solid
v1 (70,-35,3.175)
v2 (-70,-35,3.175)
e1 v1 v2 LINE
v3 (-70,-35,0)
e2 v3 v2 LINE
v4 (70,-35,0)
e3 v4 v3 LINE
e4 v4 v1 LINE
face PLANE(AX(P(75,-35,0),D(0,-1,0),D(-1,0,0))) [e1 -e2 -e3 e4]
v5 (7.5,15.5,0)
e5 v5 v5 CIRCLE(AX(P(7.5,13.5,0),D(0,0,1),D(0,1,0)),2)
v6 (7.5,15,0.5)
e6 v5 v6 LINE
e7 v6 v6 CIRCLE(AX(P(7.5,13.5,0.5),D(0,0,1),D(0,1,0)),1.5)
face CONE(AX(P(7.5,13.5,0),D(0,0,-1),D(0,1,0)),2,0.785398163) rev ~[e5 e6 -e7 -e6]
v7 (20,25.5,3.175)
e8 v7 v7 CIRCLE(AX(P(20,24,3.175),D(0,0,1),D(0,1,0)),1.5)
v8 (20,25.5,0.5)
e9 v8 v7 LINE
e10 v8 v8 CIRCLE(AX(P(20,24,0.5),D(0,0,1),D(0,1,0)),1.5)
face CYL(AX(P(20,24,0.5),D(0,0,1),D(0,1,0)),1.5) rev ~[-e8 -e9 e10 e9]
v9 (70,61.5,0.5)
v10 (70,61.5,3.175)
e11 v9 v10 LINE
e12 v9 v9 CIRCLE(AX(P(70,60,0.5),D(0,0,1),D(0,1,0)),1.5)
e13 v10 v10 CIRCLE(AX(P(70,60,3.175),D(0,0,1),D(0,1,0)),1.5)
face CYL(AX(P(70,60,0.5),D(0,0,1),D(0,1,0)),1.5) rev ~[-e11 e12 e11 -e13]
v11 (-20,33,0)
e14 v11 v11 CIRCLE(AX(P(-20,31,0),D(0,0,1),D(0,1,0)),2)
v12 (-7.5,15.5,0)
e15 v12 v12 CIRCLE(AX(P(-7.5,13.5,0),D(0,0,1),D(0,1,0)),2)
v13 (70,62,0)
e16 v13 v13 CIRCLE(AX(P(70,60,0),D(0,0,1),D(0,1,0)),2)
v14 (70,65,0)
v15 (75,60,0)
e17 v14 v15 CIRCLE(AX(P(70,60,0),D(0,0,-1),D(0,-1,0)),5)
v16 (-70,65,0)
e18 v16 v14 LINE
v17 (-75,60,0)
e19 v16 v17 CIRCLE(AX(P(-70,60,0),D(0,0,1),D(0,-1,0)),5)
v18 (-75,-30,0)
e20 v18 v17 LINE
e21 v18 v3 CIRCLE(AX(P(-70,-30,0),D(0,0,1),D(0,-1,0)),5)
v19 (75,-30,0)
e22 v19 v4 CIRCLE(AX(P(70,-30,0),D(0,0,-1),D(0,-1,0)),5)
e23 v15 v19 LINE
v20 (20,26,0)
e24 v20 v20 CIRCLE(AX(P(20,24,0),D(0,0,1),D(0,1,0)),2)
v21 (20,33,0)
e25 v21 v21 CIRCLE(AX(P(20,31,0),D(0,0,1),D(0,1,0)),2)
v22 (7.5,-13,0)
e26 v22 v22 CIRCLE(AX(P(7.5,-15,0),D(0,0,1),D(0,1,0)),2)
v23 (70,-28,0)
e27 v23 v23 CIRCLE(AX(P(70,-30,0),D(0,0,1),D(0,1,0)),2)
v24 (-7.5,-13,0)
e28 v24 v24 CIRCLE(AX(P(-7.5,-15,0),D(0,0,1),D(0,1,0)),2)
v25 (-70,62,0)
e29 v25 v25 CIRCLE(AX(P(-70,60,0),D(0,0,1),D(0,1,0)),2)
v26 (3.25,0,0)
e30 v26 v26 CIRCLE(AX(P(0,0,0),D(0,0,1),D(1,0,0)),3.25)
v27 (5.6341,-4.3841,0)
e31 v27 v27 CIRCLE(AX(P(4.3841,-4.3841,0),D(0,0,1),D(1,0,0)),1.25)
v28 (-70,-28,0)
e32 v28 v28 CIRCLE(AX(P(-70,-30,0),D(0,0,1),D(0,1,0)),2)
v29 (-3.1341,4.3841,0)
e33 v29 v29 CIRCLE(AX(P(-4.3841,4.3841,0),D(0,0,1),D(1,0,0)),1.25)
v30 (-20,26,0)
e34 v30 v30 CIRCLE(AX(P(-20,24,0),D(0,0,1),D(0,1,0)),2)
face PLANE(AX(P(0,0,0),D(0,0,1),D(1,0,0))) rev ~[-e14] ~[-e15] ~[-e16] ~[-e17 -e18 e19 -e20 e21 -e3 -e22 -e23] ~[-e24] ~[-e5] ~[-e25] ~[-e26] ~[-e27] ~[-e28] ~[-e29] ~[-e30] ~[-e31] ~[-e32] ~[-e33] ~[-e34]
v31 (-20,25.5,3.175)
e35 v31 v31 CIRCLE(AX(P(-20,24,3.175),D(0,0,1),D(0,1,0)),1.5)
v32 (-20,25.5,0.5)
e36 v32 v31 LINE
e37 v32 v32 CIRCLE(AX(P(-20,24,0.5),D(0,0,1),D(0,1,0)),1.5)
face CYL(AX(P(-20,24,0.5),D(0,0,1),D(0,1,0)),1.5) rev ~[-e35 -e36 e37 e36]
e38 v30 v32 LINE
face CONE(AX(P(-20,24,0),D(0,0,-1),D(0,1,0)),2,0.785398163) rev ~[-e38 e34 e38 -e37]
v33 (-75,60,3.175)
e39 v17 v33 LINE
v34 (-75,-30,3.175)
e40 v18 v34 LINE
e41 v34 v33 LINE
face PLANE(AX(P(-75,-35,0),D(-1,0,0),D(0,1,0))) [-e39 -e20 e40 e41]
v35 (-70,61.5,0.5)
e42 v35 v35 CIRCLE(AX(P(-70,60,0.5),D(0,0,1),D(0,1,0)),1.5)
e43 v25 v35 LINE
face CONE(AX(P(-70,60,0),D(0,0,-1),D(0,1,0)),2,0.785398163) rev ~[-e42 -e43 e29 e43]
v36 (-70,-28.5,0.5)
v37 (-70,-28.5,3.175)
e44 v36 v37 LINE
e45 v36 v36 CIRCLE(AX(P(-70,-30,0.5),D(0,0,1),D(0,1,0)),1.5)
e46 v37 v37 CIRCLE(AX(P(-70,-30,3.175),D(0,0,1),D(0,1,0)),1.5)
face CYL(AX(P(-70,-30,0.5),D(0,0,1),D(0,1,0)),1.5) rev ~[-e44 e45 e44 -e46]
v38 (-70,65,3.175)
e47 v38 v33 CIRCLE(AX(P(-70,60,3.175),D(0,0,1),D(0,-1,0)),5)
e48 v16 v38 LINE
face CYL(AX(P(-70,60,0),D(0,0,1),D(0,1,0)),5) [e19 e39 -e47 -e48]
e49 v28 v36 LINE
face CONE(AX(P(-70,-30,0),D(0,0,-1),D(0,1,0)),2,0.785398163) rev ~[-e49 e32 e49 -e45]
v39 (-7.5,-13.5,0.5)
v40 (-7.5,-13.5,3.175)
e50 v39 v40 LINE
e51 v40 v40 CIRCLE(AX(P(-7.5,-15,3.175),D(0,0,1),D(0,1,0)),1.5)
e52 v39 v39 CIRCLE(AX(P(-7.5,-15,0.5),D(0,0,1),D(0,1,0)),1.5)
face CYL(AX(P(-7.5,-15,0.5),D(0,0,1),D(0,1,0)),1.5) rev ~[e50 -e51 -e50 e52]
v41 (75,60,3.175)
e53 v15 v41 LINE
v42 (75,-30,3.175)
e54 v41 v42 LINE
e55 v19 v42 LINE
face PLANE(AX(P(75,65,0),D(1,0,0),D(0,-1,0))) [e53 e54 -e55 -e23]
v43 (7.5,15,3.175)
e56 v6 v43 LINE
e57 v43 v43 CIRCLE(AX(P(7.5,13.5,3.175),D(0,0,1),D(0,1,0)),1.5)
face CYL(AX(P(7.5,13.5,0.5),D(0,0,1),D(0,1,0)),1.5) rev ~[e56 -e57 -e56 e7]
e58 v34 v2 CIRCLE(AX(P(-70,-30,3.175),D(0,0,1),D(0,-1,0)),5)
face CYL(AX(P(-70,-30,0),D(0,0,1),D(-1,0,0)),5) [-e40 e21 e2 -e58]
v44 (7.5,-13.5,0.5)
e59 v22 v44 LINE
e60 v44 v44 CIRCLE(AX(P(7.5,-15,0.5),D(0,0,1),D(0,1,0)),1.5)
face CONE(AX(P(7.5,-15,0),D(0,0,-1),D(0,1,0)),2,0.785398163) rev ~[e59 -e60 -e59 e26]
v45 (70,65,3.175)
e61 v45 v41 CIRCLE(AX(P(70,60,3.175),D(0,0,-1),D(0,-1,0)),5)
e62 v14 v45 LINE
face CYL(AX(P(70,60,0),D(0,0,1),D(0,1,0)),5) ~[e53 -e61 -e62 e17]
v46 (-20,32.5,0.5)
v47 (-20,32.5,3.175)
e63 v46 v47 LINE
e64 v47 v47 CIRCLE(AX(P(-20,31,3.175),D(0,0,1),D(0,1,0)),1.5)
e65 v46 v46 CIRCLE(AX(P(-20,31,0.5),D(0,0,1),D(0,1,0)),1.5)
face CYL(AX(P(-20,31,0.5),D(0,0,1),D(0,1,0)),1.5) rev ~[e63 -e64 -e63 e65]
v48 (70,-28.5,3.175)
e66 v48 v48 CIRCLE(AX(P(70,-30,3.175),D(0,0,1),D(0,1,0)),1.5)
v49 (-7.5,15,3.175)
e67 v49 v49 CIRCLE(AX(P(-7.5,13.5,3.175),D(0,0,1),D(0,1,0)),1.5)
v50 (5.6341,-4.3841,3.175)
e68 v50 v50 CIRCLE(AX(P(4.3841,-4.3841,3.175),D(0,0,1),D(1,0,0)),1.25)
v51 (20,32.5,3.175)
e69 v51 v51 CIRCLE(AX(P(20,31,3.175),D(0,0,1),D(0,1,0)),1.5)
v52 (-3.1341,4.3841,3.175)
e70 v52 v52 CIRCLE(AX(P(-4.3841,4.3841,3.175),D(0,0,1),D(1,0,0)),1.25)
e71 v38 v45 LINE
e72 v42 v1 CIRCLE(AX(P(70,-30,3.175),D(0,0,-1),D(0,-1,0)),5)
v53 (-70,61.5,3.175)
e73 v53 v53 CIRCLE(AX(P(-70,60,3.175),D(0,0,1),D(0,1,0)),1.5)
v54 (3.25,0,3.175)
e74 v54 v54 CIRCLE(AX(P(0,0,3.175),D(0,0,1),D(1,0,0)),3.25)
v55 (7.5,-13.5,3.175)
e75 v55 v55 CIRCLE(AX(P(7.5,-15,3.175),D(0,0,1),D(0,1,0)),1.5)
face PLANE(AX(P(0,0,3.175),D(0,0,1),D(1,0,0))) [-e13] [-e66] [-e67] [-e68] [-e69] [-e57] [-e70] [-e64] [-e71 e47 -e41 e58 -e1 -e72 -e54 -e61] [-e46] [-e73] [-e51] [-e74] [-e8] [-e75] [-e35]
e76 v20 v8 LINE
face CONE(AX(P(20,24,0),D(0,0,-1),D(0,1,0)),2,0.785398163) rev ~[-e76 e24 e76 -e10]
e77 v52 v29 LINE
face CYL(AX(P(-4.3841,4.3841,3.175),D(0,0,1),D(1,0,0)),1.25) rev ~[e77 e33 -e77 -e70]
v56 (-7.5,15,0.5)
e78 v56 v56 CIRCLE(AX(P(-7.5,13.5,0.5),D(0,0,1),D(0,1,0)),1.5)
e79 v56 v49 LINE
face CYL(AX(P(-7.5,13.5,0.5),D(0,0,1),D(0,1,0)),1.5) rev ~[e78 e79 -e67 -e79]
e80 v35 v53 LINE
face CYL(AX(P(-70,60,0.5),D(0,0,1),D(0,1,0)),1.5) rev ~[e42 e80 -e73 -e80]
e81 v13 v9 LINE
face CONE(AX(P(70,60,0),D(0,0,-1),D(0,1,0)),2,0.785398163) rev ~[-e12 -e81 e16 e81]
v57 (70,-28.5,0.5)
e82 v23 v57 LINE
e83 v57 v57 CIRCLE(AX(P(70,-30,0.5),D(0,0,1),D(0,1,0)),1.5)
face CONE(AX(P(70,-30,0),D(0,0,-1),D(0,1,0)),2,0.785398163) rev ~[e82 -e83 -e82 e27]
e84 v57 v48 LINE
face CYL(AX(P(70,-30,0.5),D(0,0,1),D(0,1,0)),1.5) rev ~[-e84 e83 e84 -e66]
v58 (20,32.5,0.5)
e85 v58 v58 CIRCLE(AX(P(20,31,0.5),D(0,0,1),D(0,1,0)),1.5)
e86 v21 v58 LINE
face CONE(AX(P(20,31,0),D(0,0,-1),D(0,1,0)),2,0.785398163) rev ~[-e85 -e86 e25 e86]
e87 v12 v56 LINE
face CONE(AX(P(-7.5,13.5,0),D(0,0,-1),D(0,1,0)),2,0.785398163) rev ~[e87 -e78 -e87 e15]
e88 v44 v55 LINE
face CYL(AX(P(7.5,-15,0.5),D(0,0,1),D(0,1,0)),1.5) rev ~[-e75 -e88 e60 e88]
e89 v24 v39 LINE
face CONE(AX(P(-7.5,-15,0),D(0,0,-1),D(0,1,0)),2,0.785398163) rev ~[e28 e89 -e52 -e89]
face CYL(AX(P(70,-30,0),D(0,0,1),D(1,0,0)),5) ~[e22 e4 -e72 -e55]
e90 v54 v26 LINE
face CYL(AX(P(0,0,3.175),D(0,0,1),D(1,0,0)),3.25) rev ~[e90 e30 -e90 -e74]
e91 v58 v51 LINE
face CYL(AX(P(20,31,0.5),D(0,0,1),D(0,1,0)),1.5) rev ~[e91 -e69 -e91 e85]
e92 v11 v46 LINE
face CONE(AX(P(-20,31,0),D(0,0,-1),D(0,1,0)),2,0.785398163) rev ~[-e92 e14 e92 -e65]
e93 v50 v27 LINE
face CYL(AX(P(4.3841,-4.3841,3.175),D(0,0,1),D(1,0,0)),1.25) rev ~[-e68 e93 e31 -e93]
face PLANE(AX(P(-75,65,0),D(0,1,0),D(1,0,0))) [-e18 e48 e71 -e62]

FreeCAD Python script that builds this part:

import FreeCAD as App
import Part
import Sketcher
from FreeCAD import Vector
Q = App.Units.Quantity


def edges_at(feature, points):
    """Names of the edges that pass closest to the given points."""
    edges = feature.Shape.Edges
    near = lambda p: min(range(len(edges)), key=lambda i: edges[i].distToShape(Part.Vertex(*p))[0])
    return sorted({f"Edge{near(p) + 1}" for p in points})

doc = App.newDocument("Part")
params = doc.addObject("Spreadsheet::Sheet", "Params")
for row, (alias, value) in enumerate([
    ("sketch1_width", "150 mm"),
    ("sketch1_height", "100 mm"),
    ("pad1_length", "3.175 mm"),
    ("sketch2_diameter", "3 mm"),
    ("hole_diameter", "3 mm"),
    ("hole_csink_diameter", "4 mm"),
    ("fillet_radius", "5 mm"),
    ("sketch3_diameter", "6.5 mm"),
    ("sketch3_diameter2", "2.5 mm"),
    ("sketch4_diameter", "3 mm"),
    ("hole2_diameter", "3 mm"),
    ("hole2_csink_diameter", "4 mm"),
    ("sketch5_diameter", "3 mm"),
    ("hole3_diameter", "3 mm"),
    ("hole3_csink_diameter", "4 mm"),
], start=1):
    params.set(f"A{row}", alias)
    params.set(f"B{row}", "=" + value)
    params.setAlias(f"B{row}", alias)

body = doc.addObject("PartDesign::Body", "Body")

sketch1 = body.newObject("Sketcher::SketchObject", "Sketch")
sketch1.AttachmentSupport = (doc.getObject("XY_Plane"), [""])
sketch1.MapMode = "FlatFace"
sketch1.addGeometry(Part.LineSegment(Vector(75, 65, 0), Vector(-75, 65, 0)), False)
sketch1.addGeometry(Part.LineSegment(Vector(-75, 65, 0), Vector(-75, -35, 0)), False)
sketch1.addGeometry(Part.LineSegment(Vector(-75, -35, 0), Vector(75, -35, 0)), False)
sketch1.addGeometry(Part.LineSegment(Vector(75, -35, 0), Vector(75, 65, 0)), False)
sketch1.addConstraint(Sketcher.Constraint("Coincident", 0, 2, 1, 1))
sketch1.addConstraint(Sketcher.Constraint("Coincident", 1, 2, 2, 1))
sketch1.addConstraint(Sketcher.Constraint("Coincident", 2, 2, 3, 1))
sketch1.addConstraint(Sketcher.Constraint("Coincident", 3, 2, 0, 1))
sketch1.addConstraint(Sketcher.Constraint("Horizontal", 0))
sketch1.addConstraint(Sketcher.Constraint("Vertical", 1))
sketch1.addConstraint(Sketcher.Constraint("Horizontal", 2))
sketch1.addConstraint(Sketcher.Constraint("Vertical", 3))
sketch1.addConstraint(Sketcher.Constraint("DistanceX", 0, 2, 0, 1, Q("150 mm")))
sketch1.addConstraint(Sketcher.Constraint("DistanceY", 1, 2, 1, 1, Q("100 mm")))
sketch1.addConstraint(Sketcher.Constraint("DistanceX", 0, 2, -1, 1, Q("75 mm")))
sketch1.addConstraint(Sketcher.Constraint("DistanceY", -1, 1, 0, 2, Q("65 mm")))
sketch1.setExpression("Constraints[8]", "Params.sketch1_width")
sketch1.setExpression("Constraints[9]", "Params.sketch1_height")
pad1 = body.newObject("PartDesign::Pad", "Pad")
pad1.Profile = sketch1
pad1.setExpression("Length", "Params.pad1_length")

sketch2 = body.newObject("Sketcher::SketchObject", "Sketch001")
sketch2.AttachmentSupport = (doc.getObject("XY_Plane"), [""])
sketch2.MapMode = "FlatFace"
sketch2.addGeometry(Part.Circle(Vector(-70, 60, 0), Vector(0, 0, 1), 1.5), False)
sketch2.addGeometry(Part.Circle(Vector(70, 60, 0), Vector(0, 0, 1), 1.5), False)
sketch2.addGeometry(Part.Circle(Vector(70, -30, 0), Vector(0, 0, 1), 1.5), False)
sketch2.addGeometry(Part.Circle(Vector(-70, -30, 0), Vector(0, 0, 1), 1.5), False)
sketch2.addConstraint(Sketcher.Constraint("Equal", 0, 1))
sketch2.addConstraint(Sketcher.Constraint("Equal", 1, 2))
sketch2.addConstraint(Sketcher.Constraint("Equal", 2, 3))
sketch2.addConstraint(Sketcher.Constraint("Symmetric", 0, 3, 1, 3, -2))
sketch2.addConstraint(Sketcher.Constraint("Symmetric", 2, 3, 3, 3, -2))
sketch2.addConstraint(Sketcher.Constraint("Vertical", 1, 3, 2, 3))
sketch2.addConstraint(Sketcher.Constraint("Diameter", 0, Q("3 mm")))
sketch2.addConstraint(Sketcher.Constraint("DistanceX", 0, 3, -1, 1, Q("70 mm")))
sketch2.addConstraint(Sketcher.Constraint("DistanceY", -1, 1, 0, 3, Q("60 mm")))
sketch2.addConstraint(Sketcher.Constraint("DistanceY", 2, 3, -1, 1, Q("30 mm")))
sketch2.setExpression("Constraints[6]", "Params.sketch2_diameter")
doc.recompute()
hole = body.newObject("PartDesign::Hole", "Hole")
hole.Profile = sketch2
hole.ThreadType = "None"
hole.setExpression("Diameter", "Params.hole_diameter")
hole.DepthType = "ThroughAll"
hole.HoleCutType = "Countersink"
hole.setExpression("HoleCutDiameter", "Params.hole_csink_diameter")
hole.HoleCutCountersinkAngle = 90
hole.Reversed = True
doc.recompute()

fillet = body.newObject("PartDesign::Fillet", "Fillet")
fillet.Base = (hole, edges_at(hole, [
    (-75, 65, 1.587),
    (75, 65, 1.587),
    (75, -35, 1.587),
    (-75, -35, 1.587),
]))
fillet.setExpression("Radius", "Params.fillet_radius")

sketch3 = body.newObject("Sketcher::SketchObject", "Sketch002")
sketch3.AttachmentSupport = (doc.getObject("XY_Plane"), [""])
sketch3.MapMode = "FlatFace"
sketch3.AttachmentOffset = App.Placement(Vector(0, 0, 3.175), App.Rotation())
sketch3.addGeometry(Part.Circle(Vector(0, 0, 0), Vector(0, 0, 1), 3.2), False)
sketch3.addGeometry(Part.Circle(Vector(4.4, -4.4, 0), Vector(0, 0, 1), 1.2), False)
sketch3.addGeometry(Part.Circle(Vector(-4.4, 4.4, 0), Vector(0, 0, 1), 1.2), False)
sketch3.addConstraint(Sketcher.Constraint("Coincident", 0, 3, -1, 1))
sketch3.addConstraint(Sketcher.Constraint("Equal", 1, 2))
sketch3.addConstraint(Sketcher.Constraint("Symmetric", 1, 3, 2, 3, -1, 1))
sketch3.addConstraint(Sketcher.Constraint("Diameter", 0, Q("6.5 mm")))
sketch3.addConstraint(Sketcher.Constraint("Diameter", 1, Q("2.5 mm")))
sketch3.addConstraint(Sketcher.Constraint("DistanceX", -1, 1, 1, 3, Q("4.384 mm")))
sketch3.addConstraint(Sketcher.Constraint("DistanceY", 1, 3, -1, 1, Q("4.384 mm")))
sketch3.setExpression("Constraints[3]", "Params.sketch3_diameter")
sketch3.setExpression("Constraints[4]", "Params.sketch3_diameter2")
pocket1 = body.newObject("PartDesign::Pocket", "Pocket")
pocket1.Profile = sketch3
pocket1.Type = "UpToFirst"

sketch4 = body.newObject("Sketcher::SketchObject", "Sketch003")
sketch4.AttachmentSupport = (doc.getObject("XY_Plane"), [""])
sketch4.MapMode = "FlatFace"
sketch4.addGeometry(Part.Circle(Vector(7.5, 13.5, 0), Vector(0, 0, 1), 1.5), False)
sketch4.addGeometry(Part.Circle(Vector(-7.5, 13.5, 0), Vector(0, 0, 1), 1.5), False)
sketch4.addGeometry(Part.Circle(Vector(-7.5, -15, 0), Vector(0, 0, 1), 1.5), False)
sketch4.addGeometry(Part.Circle(Vector(7.5, -15, 0), Vector(0, 0, 1), 1.5), False)
sketch4.addConstraint(Sketcher.Constraint("Equal", 0, 1))
sketch4.addConstraint(Sketcher.Constraint("Equal", 1, 2))
sketch4.addConstraint(Sketcher.Constraint("Equal", 2, 3))
sketch4.addConstraint(Sketcher.Constraint("Symmetric", 0, 3, 1, 3, -2))
sketch4.addConstraint(Sketcher.Constraint("Symmetric", 2, 3, 3, 3, -2))
sketch4.addConstraint(Sketcher.Constraint("Vertical", 1, 3, 2, 3))
sketch4.addConstraint(Sketcher.Constraint("Diameter", 0, Q("3 mm")))
sketch4.addConstraint(Sketcher.Constraint("DistanceY", 2, 3, -1, 1, Q("15 mm")))
sketch4.addConstraint(Sketcher.Constraint("DistanceX", 1, 3, 0, 3, Q("15 mm")))
sketch4.addConstraint(Sketcher.Constraint("DistanceY", -1, 1, 0, 3, Q("13.5 mm")))
sketch4.setExpression("Constraints[6]", "Params.sketch4_diameter")
doc.recompute()
hole2 = body.newObject("PartDesign::Hole", "Hole001")
hole2.Profile = sketch4
hole2.ThreadType = "None"
hole2.setExpression("Diameter", "Params.hole2_diameter")
hole2.DepthType = "ThroughAll"
hole2.HoleCutType = "Countersink"
hole2.setExpression("HoleCutDiameter", "Params.hole2_csink_diameter")
hole2.HoleCutCountersinkAngle = 90
hole2.Reversed = True

sketch5 = body.newObject("Sketcher::SketchObject", "Sketch004")
sketch5.AttachmentSupport = (doc.getObject("XY_Plane"), [""])
sketch5.MapMode = "FlatFace"
sketch5.addGeometry(Part.Circle(Vector(20, 24, 0), Vector(0, 0, 1), 1.5), False)
sketch5.addGeometry(Part.Circle(Vector(20, 31, 0), Vector(0, 0, 1), 1.5), False)
sketch5.addGeometry(Part.Circle(Vector(-20, 31, 0), Vector(0, 0, 1), 1.5), False)
sketch5.addGeometry(Part.Circle(Vector(-20, 24, 0), Vector(0, 0, 1), 1.5), False)
sketch5.addConstraint(Sketcher.Constraint("Equal", 0, 1))
sketch5.addConstraint(Sketcher.Constraint("Equal", 1, 2))
sketch5.addConstraint(Sketcher.Constraint("Equal", 2, 3))
sketch5.addConstraint(Sketcher.Constraint("Symmetric", 1, 3, 2, 3, -2))
sketch5.addConstraint(Sketcher.Constraint("Symmetric", 0, 3, 3, 3, -2))
sketch5.addConstraint(Sketcher.Constraint("Vertical", 0, 3, 1, 3))
sketch5.addConstraint(Sketcher.Constraint("Diameter", 0, Q("3 mm")))
sketch5.addConstraint(Sketcher.Constraint("DistanceX", -1, 1, 0, 3, Q("20 mm")))
sketch5.addConstraint(Sketcher.Constraint("DistanceY", -1, 1, 0, 3, Q("24 mm")))
sketch5.addConstraint(Sketcher.Constraint("DistanceY", -1, 1, 1, 3, Q("31 mm")))
sketch5.setExpression("Constraints[6]", "Params.sketch5_diameter")
doc.recompute()
hole3 = body.newObject("PartDesign::Hole", "Hole002")
hole3.Profile = sketch5
hole3.ThreadType = "None"
hole3.setExpression("Diameter", "Params.hole3_diameter")
hole3.DepthType = "ThroughAll"
hole3.HoleCutType = "Countersink"
hole3.setExpression("HoleCutDiameter", "Params.hole3_csink_diameter")
hole3.HoleCutCountersinkAngle = 90
hole3.Reversed = True

doc.recompute()
